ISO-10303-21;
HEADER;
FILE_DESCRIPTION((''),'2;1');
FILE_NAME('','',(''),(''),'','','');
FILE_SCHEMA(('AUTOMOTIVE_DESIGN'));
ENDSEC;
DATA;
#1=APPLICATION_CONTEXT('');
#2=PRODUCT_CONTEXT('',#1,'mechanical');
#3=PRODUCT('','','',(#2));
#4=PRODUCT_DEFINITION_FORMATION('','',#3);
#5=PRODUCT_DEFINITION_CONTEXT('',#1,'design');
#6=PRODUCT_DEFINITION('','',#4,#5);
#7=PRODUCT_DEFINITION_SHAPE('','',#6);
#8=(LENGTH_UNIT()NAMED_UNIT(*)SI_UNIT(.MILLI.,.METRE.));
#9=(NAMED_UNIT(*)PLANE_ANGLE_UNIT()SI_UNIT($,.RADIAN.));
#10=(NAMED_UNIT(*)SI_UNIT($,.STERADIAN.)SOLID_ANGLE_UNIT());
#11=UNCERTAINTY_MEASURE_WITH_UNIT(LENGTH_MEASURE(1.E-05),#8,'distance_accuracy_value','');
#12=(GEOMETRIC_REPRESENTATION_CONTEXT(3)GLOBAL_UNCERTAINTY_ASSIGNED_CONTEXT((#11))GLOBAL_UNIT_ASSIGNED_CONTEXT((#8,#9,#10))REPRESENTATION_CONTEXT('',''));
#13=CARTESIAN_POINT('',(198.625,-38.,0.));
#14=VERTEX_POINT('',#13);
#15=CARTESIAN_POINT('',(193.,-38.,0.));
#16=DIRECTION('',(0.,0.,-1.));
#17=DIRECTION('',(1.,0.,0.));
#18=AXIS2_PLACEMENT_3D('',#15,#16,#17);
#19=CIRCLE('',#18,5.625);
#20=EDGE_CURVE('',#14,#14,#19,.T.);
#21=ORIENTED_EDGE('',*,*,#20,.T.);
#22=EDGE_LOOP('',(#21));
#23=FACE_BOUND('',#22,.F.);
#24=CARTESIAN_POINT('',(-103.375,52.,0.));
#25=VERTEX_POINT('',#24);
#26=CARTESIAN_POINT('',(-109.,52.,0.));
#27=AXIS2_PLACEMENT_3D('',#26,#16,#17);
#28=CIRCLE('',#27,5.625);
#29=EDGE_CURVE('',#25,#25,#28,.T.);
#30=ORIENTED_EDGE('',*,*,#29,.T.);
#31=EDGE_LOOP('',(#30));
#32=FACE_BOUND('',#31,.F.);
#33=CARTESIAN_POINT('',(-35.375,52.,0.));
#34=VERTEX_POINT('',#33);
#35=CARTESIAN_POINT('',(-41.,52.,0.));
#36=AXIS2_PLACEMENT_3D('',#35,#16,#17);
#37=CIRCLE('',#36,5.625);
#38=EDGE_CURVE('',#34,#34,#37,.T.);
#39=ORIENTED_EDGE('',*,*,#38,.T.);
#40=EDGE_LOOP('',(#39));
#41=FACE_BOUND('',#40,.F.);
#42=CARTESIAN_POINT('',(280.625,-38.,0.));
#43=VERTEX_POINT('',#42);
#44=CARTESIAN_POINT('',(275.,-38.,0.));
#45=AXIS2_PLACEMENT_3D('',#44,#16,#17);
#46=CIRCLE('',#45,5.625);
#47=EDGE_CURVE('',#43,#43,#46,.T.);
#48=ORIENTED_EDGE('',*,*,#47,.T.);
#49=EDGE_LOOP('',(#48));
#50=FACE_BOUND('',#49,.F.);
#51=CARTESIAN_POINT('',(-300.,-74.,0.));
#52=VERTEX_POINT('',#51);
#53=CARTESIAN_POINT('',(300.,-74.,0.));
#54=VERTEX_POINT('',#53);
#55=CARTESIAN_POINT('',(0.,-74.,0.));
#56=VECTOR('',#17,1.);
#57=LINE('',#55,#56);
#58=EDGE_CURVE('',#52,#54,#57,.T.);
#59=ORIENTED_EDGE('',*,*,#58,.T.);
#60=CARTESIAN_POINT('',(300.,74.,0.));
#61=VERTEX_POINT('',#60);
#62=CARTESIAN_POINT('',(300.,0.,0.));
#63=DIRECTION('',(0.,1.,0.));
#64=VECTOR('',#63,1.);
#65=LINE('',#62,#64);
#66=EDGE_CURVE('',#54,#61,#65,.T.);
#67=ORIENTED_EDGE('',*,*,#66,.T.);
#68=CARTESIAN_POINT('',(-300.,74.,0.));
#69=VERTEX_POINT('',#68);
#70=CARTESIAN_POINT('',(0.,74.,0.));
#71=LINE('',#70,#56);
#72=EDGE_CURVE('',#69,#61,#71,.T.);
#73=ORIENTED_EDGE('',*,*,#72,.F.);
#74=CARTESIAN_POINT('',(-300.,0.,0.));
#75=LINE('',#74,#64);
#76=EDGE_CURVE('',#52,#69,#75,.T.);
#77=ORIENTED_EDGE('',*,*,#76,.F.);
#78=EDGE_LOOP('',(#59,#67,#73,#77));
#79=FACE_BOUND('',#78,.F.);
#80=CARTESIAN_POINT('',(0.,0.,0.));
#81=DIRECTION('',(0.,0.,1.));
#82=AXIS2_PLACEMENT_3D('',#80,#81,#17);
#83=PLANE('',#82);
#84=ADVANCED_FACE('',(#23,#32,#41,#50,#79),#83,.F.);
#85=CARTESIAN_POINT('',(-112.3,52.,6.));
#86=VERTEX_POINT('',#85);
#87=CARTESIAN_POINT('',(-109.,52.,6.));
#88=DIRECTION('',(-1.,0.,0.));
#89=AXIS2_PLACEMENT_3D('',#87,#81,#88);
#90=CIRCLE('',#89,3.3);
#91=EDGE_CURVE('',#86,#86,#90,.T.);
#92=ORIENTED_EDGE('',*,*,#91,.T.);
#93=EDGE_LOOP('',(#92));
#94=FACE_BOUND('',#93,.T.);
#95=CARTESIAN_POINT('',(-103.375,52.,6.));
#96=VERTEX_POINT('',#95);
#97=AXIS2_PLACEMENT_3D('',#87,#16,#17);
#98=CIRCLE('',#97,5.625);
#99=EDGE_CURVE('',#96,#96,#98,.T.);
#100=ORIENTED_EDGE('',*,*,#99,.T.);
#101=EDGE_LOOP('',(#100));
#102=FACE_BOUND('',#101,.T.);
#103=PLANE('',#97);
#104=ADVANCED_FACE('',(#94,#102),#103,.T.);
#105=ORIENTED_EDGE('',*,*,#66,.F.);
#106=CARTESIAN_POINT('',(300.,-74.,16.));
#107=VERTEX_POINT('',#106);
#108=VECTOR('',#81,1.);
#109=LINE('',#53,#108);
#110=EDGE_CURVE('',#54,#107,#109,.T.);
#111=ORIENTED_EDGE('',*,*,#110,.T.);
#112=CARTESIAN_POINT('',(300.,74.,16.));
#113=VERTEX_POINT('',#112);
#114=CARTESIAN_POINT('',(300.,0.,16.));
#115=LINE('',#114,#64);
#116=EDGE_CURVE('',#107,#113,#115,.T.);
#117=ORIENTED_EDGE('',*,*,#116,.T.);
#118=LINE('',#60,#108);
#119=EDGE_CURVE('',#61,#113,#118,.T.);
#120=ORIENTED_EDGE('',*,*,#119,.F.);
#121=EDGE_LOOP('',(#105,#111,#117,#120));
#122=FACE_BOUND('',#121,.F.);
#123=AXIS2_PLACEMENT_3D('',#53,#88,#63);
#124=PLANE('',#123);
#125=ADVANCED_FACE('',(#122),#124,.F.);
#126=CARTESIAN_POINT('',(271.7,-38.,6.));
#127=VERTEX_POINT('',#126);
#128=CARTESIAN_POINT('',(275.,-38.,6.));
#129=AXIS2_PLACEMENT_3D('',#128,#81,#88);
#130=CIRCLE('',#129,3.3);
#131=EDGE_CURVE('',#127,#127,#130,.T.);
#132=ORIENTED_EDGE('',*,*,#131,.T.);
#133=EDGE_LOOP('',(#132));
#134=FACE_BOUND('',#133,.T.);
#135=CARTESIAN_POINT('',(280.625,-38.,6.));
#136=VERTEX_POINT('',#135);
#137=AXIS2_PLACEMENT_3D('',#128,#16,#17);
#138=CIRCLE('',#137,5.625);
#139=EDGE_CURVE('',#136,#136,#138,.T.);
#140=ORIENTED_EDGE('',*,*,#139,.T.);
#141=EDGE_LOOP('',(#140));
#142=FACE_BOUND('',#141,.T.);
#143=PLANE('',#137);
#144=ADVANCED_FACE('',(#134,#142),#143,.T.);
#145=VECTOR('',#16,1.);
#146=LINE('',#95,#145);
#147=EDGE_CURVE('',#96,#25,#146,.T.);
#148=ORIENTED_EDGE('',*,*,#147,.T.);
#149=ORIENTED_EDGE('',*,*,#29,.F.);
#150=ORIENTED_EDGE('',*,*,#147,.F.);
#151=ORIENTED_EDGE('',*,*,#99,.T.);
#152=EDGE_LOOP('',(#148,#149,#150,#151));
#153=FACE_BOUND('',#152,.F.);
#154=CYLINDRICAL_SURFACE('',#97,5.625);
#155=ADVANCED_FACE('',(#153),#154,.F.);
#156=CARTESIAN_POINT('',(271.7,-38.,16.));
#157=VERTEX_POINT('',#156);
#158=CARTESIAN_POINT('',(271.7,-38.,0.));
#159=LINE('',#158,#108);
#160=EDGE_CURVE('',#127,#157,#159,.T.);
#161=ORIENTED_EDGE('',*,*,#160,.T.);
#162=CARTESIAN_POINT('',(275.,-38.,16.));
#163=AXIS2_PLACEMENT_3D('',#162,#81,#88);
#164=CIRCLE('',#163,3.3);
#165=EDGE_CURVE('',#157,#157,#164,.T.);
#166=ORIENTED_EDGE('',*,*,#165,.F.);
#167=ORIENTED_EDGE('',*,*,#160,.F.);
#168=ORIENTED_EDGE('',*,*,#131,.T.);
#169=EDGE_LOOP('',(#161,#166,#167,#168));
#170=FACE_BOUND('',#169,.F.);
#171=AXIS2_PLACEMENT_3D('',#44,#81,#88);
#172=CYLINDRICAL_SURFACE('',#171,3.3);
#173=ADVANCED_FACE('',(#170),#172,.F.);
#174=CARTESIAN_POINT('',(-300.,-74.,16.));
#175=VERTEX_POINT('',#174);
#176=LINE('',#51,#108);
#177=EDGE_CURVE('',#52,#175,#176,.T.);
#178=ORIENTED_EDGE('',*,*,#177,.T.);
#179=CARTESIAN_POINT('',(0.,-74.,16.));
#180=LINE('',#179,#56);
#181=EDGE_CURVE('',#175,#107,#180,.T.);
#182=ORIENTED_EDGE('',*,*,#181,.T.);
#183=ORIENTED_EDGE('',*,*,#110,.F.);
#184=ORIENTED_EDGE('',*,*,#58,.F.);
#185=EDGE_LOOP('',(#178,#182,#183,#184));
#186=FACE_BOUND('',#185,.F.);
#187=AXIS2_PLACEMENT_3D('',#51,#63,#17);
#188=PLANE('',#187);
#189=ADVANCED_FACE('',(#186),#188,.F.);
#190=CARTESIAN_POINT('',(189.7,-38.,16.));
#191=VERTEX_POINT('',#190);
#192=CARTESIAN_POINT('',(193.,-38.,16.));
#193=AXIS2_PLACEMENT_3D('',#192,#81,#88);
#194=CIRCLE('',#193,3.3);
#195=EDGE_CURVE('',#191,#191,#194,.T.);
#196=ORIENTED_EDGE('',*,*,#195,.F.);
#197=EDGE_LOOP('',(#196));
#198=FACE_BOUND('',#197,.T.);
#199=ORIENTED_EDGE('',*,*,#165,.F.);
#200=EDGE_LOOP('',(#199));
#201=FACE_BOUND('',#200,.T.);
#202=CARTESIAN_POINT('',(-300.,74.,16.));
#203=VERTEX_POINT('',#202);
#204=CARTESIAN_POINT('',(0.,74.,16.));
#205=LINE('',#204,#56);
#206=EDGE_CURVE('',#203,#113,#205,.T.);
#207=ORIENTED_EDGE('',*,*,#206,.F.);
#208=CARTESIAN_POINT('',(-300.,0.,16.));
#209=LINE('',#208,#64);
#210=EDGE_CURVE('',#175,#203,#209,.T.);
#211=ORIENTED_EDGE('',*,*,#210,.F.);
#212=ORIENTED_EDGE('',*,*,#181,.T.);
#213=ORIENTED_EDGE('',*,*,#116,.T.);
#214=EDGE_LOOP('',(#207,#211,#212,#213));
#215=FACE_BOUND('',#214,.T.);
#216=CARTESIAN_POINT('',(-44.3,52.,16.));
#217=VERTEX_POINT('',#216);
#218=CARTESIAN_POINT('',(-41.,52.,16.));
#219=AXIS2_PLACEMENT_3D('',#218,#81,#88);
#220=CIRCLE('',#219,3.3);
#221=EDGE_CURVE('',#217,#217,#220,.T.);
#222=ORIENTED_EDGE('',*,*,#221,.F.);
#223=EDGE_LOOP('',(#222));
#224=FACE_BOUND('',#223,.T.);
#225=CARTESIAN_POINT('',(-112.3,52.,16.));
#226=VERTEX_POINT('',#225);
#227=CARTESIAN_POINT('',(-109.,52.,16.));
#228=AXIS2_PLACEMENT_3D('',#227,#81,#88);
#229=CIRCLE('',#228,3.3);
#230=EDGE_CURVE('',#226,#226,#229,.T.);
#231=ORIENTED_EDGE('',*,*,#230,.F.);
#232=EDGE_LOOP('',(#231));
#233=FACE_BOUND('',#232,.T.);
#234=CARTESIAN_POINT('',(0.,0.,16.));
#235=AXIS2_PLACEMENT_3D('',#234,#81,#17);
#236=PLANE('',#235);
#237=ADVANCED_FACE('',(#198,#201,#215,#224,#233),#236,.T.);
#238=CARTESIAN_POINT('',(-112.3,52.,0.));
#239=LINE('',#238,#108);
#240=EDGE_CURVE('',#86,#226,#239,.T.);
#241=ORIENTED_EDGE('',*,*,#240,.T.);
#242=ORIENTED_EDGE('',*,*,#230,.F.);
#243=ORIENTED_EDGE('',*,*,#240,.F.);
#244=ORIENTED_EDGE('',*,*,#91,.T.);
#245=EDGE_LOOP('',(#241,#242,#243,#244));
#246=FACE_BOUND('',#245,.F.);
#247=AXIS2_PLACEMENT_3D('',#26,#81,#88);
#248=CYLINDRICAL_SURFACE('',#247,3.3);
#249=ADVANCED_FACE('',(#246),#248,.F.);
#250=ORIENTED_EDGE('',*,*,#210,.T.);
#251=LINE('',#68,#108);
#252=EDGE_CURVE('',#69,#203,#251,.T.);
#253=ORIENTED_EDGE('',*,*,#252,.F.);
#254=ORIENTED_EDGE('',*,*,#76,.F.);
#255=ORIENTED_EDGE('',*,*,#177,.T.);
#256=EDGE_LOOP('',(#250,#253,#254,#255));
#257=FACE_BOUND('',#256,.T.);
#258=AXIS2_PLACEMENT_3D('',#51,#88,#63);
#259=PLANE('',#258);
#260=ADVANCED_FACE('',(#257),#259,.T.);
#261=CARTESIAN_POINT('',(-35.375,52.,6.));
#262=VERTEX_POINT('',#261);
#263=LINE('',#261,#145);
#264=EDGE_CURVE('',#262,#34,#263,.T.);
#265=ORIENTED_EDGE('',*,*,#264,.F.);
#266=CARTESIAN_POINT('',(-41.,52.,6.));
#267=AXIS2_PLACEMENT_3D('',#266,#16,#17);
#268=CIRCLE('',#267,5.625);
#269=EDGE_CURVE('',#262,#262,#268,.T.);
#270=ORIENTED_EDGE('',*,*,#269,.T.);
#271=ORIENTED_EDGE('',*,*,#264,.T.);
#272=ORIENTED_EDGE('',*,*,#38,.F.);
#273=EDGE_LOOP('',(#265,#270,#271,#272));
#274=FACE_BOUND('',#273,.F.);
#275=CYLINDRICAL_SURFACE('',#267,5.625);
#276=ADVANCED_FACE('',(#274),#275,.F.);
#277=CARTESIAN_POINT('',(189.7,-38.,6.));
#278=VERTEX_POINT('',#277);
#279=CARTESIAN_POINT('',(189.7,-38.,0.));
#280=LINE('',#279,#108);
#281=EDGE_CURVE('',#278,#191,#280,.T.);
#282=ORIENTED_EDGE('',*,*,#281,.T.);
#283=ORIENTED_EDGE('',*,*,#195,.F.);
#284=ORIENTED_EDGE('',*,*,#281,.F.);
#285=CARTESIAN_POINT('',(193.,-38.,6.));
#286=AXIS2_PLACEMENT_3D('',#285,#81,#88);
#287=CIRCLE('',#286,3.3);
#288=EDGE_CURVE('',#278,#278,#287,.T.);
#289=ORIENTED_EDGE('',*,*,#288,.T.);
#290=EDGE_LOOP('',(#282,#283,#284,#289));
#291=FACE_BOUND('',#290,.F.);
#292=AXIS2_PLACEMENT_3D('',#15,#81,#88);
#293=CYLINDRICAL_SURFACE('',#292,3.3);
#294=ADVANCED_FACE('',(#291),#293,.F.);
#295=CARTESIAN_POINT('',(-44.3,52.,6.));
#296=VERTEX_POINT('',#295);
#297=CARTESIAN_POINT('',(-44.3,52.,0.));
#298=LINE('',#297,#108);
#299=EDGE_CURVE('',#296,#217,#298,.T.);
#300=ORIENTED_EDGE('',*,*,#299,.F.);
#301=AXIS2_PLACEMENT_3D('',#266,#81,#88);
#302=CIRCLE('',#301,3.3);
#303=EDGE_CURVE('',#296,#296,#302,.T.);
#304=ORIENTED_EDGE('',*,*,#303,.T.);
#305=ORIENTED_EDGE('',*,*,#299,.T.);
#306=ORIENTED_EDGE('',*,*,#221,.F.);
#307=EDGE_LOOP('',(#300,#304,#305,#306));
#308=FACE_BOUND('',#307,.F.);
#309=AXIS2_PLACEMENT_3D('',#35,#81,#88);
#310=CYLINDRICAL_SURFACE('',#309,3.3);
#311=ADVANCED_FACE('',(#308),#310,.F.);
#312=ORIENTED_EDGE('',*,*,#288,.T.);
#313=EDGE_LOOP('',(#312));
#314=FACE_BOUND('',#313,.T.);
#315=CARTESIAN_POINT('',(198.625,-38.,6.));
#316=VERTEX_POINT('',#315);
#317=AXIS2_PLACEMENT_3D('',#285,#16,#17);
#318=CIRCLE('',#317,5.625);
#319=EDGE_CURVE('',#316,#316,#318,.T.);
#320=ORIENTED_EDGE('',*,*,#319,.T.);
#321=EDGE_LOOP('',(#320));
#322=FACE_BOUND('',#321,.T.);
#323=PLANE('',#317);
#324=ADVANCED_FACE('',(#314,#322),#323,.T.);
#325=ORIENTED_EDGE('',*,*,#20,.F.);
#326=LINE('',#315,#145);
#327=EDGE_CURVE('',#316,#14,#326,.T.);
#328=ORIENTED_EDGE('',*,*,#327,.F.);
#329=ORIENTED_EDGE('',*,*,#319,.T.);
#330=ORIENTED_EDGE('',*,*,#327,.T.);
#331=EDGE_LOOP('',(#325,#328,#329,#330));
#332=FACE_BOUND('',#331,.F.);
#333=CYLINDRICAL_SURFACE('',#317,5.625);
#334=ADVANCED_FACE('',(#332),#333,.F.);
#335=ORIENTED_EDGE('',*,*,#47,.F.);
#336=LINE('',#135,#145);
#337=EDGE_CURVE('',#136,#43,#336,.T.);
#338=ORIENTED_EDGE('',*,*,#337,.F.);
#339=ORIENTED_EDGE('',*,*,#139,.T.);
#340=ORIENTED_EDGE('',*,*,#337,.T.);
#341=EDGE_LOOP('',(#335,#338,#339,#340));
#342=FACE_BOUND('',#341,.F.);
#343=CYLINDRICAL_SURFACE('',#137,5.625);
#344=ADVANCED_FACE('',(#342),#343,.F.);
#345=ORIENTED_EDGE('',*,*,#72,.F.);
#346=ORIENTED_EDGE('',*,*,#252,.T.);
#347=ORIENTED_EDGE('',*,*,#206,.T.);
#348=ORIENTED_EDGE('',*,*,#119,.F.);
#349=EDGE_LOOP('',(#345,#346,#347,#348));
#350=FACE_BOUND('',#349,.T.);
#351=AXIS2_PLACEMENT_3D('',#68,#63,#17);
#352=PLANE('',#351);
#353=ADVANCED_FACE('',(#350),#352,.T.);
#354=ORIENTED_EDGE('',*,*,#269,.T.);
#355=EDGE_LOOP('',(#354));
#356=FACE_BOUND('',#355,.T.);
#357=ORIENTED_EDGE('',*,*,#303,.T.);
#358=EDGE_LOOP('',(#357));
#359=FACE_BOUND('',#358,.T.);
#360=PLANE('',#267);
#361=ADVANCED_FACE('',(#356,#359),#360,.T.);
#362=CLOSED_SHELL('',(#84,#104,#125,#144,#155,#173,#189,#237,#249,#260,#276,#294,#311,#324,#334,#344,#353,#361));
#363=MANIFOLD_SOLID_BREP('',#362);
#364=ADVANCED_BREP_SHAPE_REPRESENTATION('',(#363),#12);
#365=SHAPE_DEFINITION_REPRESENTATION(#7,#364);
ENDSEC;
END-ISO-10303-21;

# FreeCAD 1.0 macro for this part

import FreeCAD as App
import Part
import Sketcher

V = App.Vector


def add_polygon(sketch, points):
    """Adds a closed chain of lines whose ends are joined by coincident constraints."""
    first, n = sketch.GeometryCount, len(points)
    for a, b in zip(points, points[1:] + points[:1]):
        sketch.addGeometry(Part.LineSegment(App.Vector(*a, 0), App.Vector(*b, 0)), False)
    for i in range(n):
        sketch.addConstraint(Sketcher.Constraint("Coincident", first + i, 2, first + (i + 1) % n, 1))

doc = App.newDocument("Part")
params = doc.addObject("Spreadsheet::Sheet", "Params")
for row, (alias, value) in enumerate([
    ("sketch1_width", "600 mm"),
    ("sketch1_height", "148 mm"),
    ("pad1_length", "16 mm"),
    ("sketch2_diameter", "6.6 mm"),
    ("hole_diameter", "6.6 mm"),
    ("hole_cbore_diameter", "11.25 mm"),
    ("hole_cbore_depth", "6 mm"),
], start=1):
    params.set(f"A{row}", alias)
    params.set(f"B{row}", "=" + value)
    params.setAlias(f"B{row}", alias)

body = doc.addObject("PartDesign::Body", "Body")

sketch1 = body.newObject("Sketcher::SketchObject", "Sketch")
sketch1.AttachmentSupport = (doc.getObject("XY_Plane"), [""])
sketch1.MapMode = "FlatFace"
add_polygon(sketch1, [(-300, 74), (-300, -74), (300, -74), (300, 74)])
sketch1.addConstraint([
    Sketcher.Constraint("Vertical", 0),
    Sketcher.Constraint("Horizontal", 1),
    Sketcher.Constraint("Vertical", 2),
    Sketcher.Constraint("Horizontal", 3),
    Sketcher.Constraint("Symmetric", 0, 2, 2, 2, -1, 1),
    Sketcher.Constraint("DistanceX", 1, 1, 1, 2, 600.0),
    Sketcher.Constraint("DistanceY", 0, 2, 0, 1, 148.0),
])
sketch1.setExpression("Constraints[9]", "Params.sketch1_width")
sketch1.setExpression("Constraints[10]", "Params.sketch1_height")
pad1 = body.newObject("PartDesign::Pad", "Pad")
pad1.Profile = sketch1
pad1.setExpression("Length", "Params.pad1_length")

sketch2 = body.newObject("Sketcher::SketchObject", "Sketch001")
sketch2.AttachmentSupport = (doc.getObject("XY_Plane"), [""])
sketch2.MapMode = "FlatFace"
sketch2.addGeometry([
    Part.Circle(V(-109, 52, 0), V(0, 0, 1), 3.3),
    Part.Circle(V(-41, 52, 0), V(0, 0, 1), 3.3),
    Part.Circle(V(193, -38, 0), V(0, 0, 1), 3.3),
    Part.Circle(V(275, -38, 0), V(0, 0, 1), 3.3),
], False)
sketch2.addConstraint([
    Sketcher.Constraint("Equal", 0, 1),
    Sketcher.Constraint("Equal", 1, 2),
    Sketcher.Constraint("Equal", 2, 3),
    Sketcher.Constraint("Horizontal", 0, 3, 1, 3),
    Sketcher.Constraint("Horizontal", 2, 3, 3, 3),
    Sketcher.Constraint("Diameter", 0, 6.6),
    Sketcher.Constraint("DistanceX", 0, 3, -1, 1, 109.0),
    Sketcher.Constraint("DistanceY", -1, 1, 0, 3, 52.0),
    Sketcher.Constraint("DistanceX", 1, 3, -1, 1, 41.0),
    Sketcher.Constraint("DistanceX", -1, 1, 2, 3, 193.0),
    Sketcher.Constraint("DistanceY", 2, 3, -1, 1, 38.0),
    Sketcher.Constraint("DistanceX", -1, 1, 3, 3, 275.0),
])
sketch2.setExpression("Constraints[5]", "Params.sketch2_diameter")
doc.recompute()
hole = body.newObject("PartDesign::Hole", "Hole")
hole.Profile = sketch2
hole.ThreadType = "None"
hole.setExpression("Diameter", "Params.hole_diameter")
hole.DepthType = "ThroughAll"
hole.HoleCutType = "Counterbore"
hole.setExpression("HoleCutDiameter", "Params.hole_cbore_diameter")
hole.setExpression("HoleCutDepth", "Params.hole_cbore_depth")
hole.Reversed = True

doc.recompute()
